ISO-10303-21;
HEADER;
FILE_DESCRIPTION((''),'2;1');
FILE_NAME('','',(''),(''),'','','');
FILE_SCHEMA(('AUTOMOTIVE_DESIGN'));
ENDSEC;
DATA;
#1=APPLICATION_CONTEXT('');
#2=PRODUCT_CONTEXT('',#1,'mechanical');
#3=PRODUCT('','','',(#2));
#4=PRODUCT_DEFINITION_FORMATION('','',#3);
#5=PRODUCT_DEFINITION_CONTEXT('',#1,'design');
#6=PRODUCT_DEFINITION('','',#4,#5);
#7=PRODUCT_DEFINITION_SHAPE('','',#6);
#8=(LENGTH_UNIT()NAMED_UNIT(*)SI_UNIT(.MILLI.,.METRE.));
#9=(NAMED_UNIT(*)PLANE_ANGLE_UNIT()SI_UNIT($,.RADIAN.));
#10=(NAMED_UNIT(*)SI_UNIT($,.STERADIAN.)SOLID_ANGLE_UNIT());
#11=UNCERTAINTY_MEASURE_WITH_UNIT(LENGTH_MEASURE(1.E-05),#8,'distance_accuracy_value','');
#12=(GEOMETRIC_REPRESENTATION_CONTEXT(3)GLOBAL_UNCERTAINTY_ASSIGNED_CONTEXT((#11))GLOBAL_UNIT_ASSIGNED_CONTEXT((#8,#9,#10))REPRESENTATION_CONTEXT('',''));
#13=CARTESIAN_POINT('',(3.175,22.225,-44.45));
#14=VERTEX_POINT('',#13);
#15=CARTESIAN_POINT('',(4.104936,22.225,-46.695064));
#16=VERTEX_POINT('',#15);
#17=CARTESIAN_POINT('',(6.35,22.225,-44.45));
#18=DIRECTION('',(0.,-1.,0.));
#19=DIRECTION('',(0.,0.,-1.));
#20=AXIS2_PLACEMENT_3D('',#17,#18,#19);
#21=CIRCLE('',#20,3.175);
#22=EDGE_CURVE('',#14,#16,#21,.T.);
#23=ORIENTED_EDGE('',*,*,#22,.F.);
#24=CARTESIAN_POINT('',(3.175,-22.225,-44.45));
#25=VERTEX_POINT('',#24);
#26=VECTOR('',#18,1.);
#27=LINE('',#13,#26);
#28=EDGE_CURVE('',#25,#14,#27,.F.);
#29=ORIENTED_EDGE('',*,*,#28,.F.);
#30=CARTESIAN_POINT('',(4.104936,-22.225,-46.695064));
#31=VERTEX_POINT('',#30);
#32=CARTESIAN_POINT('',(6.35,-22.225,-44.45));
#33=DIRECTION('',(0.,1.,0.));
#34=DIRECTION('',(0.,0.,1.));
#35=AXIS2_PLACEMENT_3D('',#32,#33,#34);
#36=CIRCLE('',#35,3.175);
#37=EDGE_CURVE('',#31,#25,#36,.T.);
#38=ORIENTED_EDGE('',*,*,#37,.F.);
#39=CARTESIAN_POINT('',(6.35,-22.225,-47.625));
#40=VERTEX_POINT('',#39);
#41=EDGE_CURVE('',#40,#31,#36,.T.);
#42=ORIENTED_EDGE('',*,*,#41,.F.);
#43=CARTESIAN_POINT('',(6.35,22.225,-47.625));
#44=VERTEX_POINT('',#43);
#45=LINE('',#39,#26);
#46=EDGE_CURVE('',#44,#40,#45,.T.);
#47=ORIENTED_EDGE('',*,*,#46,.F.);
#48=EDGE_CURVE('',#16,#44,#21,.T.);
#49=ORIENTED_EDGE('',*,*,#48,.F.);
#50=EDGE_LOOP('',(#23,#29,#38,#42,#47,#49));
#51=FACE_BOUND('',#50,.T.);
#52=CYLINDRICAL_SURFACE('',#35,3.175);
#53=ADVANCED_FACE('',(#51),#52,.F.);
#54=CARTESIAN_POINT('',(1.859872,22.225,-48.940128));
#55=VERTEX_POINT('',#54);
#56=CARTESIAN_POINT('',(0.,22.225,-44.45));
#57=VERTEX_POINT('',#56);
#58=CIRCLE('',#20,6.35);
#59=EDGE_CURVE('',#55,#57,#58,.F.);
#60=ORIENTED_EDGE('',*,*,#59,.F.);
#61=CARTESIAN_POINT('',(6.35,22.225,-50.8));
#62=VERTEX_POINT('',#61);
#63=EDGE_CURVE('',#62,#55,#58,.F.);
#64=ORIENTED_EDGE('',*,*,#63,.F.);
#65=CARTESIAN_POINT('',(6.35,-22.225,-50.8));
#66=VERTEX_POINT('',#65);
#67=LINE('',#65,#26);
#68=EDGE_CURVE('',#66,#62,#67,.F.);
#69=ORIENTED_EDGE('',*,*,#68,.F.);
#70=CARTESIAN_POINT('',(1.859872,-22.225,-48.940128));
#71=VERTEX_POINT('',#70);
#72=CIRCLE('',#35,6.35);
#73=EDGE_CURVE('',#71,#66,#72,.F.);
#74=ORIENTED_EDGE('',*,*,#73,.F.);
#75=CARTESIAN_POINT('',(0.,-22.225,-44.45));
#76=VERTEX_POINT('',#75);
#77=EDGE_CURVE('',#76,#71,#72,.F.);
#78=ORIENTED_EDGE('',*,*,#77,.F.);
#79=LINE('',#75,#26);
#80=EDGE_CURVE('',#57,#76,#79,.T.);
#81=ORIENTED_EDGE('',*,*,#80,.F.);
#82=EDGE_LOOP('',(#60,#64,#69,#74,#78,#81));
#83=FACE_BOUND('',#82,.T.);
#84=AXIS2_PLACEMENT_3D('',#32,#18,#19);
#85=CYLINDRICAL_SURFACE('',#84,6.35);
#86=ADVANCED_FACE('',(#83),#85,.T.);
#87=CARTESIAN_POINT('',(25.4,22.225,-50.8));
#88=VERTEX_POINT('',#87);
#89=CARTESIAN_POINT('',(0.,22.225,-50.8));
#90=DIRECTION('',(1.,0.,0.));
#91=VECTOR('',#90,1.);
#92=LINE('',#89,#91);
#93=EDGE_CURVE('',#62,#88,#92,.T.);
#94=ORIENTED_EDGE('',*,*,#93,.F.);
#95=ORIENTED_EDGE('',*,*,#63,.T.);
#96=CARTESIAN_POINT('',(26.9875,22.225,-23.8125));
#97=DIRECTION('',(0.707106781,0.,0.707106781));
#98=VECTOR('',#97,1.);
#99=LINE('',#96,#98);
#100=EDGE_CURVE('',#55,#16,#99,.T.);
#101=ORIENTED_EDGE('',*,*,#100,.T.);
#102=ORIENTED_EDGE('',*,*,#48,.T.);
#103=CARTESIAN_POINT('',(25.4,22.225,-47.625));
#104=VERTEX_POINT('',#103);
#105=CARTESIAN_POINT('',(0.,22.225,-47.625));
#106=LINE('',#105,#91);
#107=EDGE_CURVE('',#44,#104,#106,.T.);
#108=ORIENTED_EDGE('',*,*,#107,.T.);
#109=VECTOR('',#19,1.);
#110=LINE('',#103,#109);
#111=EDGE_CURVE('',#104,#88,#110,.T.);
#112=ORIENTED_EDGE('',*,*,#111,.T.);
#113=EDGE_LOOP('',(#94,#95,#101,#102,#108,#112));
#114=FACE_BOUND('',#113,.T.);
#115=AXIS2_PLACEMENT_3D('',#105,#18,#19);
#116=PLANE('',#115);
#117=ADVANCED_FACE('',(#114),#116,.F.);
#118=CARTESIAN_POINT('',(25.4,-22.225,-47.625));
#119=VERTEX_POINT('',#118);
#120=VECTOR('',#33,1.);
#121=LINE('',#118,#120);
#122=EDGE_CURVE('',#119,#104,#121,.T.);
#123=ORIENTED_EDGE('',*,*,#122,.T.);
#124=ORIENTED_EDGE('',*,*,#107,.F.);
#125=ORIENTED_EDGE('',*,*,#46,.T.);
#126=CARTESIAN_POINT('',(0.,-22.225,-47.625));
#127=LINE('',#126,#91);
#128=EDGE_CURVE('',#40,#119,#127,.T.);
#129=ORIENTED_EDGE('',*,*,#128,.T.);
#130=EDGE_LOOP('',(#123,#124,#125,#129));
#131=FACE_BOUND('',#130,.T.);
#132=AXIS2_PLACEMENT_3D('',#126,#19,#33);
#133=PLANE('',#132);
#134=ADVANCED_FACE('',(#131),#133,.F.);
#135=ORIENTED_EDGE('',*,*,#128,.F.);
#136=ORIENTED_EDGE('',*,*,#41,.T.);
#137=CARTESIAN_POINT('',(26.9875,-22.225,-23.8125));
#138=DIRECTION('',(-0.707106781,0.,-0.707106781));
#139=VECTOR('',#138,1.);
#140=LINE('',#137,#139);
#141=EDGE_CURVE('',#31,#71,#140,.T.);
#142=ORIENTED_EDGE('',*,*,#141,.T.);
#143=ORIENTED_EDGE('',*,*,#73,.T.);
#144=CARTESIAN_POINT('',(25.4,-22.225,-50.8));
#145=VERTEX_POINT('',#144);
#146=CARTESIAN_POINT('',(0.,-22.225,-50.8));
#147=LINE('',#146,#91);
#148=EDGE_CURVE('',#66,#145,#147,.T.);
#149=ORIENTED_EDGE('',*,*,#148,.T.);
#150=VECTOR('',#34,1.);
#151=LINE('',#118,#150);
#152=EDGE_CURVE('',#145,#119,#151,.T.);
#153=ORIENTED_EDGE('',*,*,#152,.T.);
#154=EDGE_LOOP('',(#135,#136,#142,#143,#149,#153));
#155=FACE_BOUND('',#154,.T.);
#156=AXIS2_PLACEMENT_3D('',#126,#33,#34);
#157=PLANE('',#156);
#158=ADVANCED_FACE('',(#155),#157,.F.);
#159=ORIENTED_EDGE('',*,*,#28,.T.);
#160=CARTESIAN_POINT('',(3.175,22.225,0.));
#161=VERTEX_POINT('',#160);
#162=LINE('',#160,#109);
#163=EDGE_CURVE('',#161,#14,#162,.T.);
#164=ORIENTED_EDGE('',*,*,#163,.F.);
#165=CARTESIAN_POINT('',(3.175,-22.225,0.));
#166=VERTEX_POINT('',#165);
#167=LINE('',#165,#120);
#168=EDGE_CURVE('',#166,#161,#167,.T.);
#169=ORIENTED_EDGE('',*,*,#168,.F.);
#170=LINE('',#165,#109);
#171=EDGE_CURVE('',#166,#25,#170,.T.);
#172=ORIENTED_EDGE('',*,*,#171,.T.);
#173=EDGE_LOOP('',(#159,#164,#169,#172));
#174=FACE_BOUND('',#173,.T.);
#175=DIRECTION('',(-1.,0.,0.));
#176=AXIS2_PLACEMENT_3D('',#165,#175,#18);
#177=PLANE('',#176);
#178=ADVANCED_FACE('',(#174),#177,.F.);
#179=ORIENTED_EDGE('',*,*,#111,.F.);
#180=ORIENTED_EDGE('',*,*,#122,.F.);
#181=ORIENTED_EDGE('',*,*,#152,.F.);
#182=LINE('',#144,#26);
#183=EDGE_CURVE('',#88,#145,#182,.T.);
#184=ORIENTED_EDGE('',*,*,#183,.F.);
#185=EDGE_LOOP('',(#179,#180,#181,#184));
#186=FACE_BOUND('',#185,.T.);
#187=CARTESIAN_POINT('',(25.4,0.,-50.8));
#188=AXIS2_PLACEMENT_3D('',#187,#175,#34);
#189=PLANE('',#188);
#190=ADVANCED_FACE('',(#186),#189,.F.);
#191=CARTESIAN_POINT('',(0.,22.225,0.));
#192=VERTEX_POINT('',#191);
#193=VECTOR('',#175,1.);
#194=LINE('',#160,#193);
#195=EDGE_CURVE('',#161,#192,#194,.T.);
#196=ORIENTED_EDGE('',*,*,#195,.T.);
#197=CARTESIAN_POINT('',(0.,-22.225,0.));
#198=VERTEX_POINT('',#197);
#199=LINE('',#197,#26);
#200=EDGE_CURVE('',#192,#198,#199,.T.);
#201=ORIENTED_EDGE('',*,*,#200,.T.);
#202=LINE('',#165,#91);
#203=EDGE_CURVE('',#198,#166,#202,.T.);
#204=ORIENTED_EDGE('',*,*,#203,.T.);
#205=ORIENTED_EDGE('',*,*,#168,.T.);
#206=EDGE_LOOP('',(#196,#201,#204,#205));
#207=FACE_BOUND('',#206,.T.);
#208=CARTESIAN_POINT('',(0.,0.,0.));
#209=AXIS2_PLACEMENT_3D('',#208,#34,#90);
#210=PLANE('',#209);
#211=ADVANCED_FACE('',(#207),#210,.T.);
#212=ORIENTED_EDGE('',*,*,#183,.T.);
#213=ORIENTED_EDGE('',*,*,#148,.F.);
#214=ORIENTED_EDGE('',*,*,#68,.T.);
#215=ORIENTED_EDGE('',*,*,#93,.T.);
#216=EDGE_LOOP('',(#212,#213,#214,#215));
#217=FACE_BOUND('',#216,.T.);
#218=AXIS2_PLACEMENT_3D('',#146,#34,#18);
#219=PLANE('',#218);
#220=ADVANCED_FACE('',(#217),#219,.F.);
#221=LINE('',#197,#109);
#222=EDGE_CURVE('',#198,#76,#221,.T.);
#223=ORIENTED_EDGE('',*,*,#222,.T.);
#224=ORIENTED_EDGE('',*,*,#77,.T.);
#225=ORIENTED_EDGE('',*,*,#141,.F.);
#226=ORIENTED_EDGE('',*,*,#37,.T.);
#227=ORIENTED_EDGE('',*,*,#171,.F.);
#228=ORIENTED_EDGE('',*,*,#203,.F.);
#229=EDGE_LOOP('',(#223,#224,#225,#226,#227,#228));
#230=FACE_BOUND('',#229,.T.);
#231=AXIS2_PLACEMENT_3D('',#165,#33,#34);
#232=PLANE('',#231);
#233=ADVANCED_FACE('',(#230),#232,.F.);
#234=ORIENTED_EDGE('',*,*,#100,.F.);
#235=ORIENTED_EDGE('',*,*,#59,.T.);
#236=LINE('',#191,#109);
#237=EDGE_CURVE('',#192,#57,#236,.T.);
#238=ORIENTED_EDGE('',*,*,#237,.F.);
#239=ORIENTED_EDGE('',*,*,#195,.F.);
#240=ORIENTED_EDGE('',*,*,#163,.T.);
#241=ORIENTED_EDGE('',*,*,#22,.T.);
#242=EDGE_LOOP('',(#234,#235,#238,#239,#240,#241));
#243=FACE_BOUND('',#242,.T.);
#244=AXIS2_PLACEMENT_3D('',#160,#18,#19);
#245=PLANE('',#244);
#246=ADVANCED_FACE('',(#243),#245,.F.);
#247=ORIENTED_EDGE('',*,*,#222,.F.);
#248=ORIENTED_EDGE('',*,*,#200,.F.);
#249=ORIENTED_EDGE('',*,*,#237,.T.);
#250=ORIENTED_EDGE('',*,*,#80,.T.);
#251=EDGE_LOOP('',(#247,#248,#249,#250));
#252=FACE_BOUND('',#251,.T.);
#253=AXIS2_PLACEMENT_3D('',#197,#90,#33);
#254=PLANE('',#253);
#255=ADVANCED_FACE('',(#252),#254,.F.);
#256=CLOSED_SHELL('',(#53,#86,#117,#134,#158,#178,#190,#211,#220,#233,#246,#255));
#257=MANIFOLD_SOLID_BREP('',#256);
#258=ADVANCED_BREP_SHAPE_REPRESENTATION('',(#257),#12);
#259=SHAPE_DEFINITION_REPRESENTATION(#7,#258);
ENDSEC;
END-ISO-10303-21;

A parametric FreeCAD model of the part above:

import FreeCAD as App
import Part
import Sketcher
from FreeCAD import Vector
Q = App.Units.Quantity


def edges_at(feature, points):
    """Names of the edges that pass closest to the given points."""
    edges = feature.Shape.Edges
    near = lambda p: min(range(len(edges)), key=lambda i: edges[i].distToShape(Part.Vertex(*p))[0])
    return sorted({f"Edge{near(p) + 1}" for p in points})


def add_polygon(sketch, points):
    """Adds a closed chain of lines whose ends are joined by coincident constraints."""
    first, n = sketch.GeometryCount, len(points)
    for a, b in zip(points, points[1:] + points[:1]):
        sketch.addGeometry(Part.LineSegment(App.Vector(*a, 0), App.Vector(*b, 0)), False)
    for i in range(n):
        sketch.addConstraint(Sketcher.Constraint("Coincident", first + i, 2, first + (i + 1) % n, 1))

doc = App.newDocument("Part")
body = doc.addObject("PartDesign::Body", "Body")

# Sketch on XY plane
sketch1 = doc.addObject("Sketcher::SketchObject", "Sketch")
body.addObject(sketch1)
sketch1.AttachmentSupport = (doc.XY_Plane, [""])
sketch1.MapMode = "FlatFace"
add_polygon(sketch1, [(0, 22.2), (0, -22.2), (3.2, -22.2), (3.2, 22.2)])  # lines 0-3
sketch1.addConstraint([
    Sketcher.Constraint("Vertical", 0),
    Sketcher.Constraint("Horizontal", 1),
    Sketcher.Constraint("Vertical", 2),
    Sketcher.Constraint("Horizontal", 3),
    Sketcher.Constraint("Symmetric", 0, 2, 3, 2, -1, 1),
    Sketcher.Constraint("DistanceY", 0, 2, 0, 1, Q("1.75 in")),
    Sketcher.Constraint("DistanceX", 1, 1, 1, 2, Q("0.125 in")),
])

# Sketch on XZ plane
sketch2 = doc.addObject("Sketcher::SketchObject", "Sketch001")
body.addObject(sketch2)
sketch2.AttachmentSupport = (doc.XZ_Plane, [""])
sketch2.MapMode = "FlatFace"
sketch2.addGeometry([
    Part.LineSegment(Vector(0, 0, 0), Vector(0, -51, 0)),
    Part.LineSegment(Vector(0, -51, 0), Vector(25, -51, 0)),
], False)
sketch2.addConstraint([
    Sketcher.Constraint("Coincident", 0, 2, 1, 1),
    Sketcher.Constraint("Vertical", 0),
    Sketcher.Constraint("Horizontal", 1),
    Sketcher.Constraint("Coincident", 0, 1, -1, 1),
    Sketcher.Constraint("DistanceX", 1, 1, 1, 2, Q("1 in")),
    Sketcher.Constraint("DistanceY", 0, 2, 0, 1, Q("2 in")),
])
doc.recompute()

additivepipe = doc.addObject("PartDesign::AdditivePipe", "AdditivePipe")
body.addObject(additivepipe)
additivepipe.Profile = sketch1
additivepipe.Spine = (sketch2, ["Edge1", "Edge2"])
additivepipe.Transition = "Right corner"
doc.recompute()

fillet = doc.addObject("PartDesign::Fillet", "Fillet")
body.addObject(fillet)
fillet.Base = (additivepipe, edges_at(additivepipe, [(3.175, 0, -47.625)]))
fillet.Radius = Q("0.125 in")
doc.recompute()

fillet2 = doc.addObject("PartDesign::Fillet", "Fillet001")
body.addObject(fillet2)
fillet2.Base = (fillet, edges_at(fillet, [(0, 0, -50.8)]))
fillet2.Radius = Q("0.25 in")

doc.recompute()
